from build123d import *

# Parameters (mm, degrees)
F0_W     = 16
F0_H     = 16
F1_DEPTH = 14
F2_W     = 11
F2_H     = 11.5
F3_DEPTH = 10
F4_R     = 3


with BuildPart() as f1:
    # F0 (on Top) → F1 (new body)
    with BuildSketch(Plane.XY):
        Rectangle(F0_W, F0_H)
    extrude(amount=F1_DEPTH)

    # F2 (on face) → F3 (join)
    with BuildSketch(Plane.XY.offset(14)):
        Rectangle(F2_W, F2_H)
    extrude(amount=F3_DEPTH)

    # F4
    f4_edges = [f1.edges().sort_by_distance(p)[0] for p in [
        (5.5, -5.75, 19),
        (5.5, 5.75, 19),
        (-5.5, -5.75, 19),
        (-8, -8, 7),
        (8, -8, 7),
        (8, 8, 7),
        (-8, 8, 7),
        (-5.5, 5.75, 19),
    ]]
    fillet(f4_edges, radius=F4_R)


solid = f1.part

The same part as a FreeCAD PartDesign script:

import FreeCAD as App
import Part
import Sketcher

V = App.Vector


def edges_at(feature, points):
    """Names of the edges that pass closest to the given points."""
    edges = feature.Shape.Edges
    near = lambda p: min(range(len(edges)), key=lambda i: edges[i].distToShape(Part.Vertex(*p))[0])
    return sorted({f"Edge{near(p) + 1}" for p in points})


def add_polygon(sketch, points):
    """Adds a closed chain of lines whose ends are joined by coincident constraints."""
    first, n = sketch.GeometryCount, len(points)
    for a, b in zip(points, points[1:] + points[:1]):
        sketch.addGeometry(Part.LineSegment(App.Vector(*a, 0), App.Vector(*b, 0)), False)
    for i in range(n):
        sketch.addConstraint(Sketcher.Constraint("Coincident", first + i, 2, first + (i + 1) % n, 1))

doc = App.newDocument("Part")
params = doc.addObject("Spreadsheet::Sheet", "Params")
for row, (alias, value) in enumerate([
    ("sketch1_width", "16 mm"),
    ("pad1_length", "14 mm"),
    ("sketch2_width", "11 mm"),
    ("sketch2_height", "11.5 mm"),
    ("pad2_length", "10 mm"),
    ("fillet_radius", "3 mm"),
], start=1):
    params.set(f"A{row}", alias)
    params.set(f"B{row}", "=" + value)
    params.setAlias(f"B{row}", alias)

body = doc.addObject("PartDesign::Body", "Body")

# Sketch on XY plane
sketch1 = body.newObject("Sketcher::SketchObject", "Sketch")
sketch1.AttachmentSupport = (doc.getObject("XY_Plane"), [""])
sketch1.MapMode = "FlatFace"
add_polygon(sketch1, [(-8, 8), (-8, -8), (8, -8), (8, 8)])  # lines 0-3
sketch1.addConstraint([
    Sketcher.Constraint("Vertical", 0),
    Sketcher.Constraint("Horizontal", 1),
    Sketcher.Constraint("Vertical", 2),
    Sketcher.Constraint("Horizontal", 3),
    Sketcher.Constraint("Symmetric", 0, 2, 2, 2, -1, 1),
    Sketcher.Constraint("Equal", 3, 0),
    Sketcher.Constraint("DistanceX", 1, 1, 1, 2, 16.0),
])
sketch1.setExpression("Constraints[10]", "Params.sketch1_width")
pad1 = body.newObject("PartDesign::Pad", "Pad")
pad1.Profile = sketch1
pad1.setExpression("Length", "Params.pad1_length")

# Sketch on XY plane
sketch2 = body.newObject("Sketcher::SketchObject", "Sketch001")
sketch2.AttachmentSupport = (doc.getObject("XY_Plane"), [""])
sketch2.MapMode = "FlatFace"
sketch2.AttachmentOffset = App.Placement(V(0, 0, 14), App.Rotation())
add_polygon(sketch2, [(-6, 6), (-6, -6), (6, -6), (6, 6)])  # lines 0-3
sketch2.addConstraint([
    Sketcher.Constraint("Vertical", 0),
    Sketcher.Constraint("Horizontal", 1),
    Sketcher.Constraint("Vertical", 2),
    Sketcher.Constraint("Horizontal", 3),
    Sketcher.Constraint("Symmetric", 0, 2, 2, 2, -1, 1),
    Sketcher.Constraint("DistanceX", 1, 1, 1, 2, 11.0),
    Sketcher.Constraint("DistanceY", 0, 2, 0, 1, 11.5),
])
sketch2.setExpression("Constraints[9]", "Params.sketch2_width")
sketch2.setExpression("Constraints[10]", "Params.sketch2_height")
pad2 = body.newObject("PartDesign::Pad", "Pad001")
pad2.Profile = sketch2
pad2.setExpression("Length", "Params.pad2_length")
doc.recompute()

fillet = body.newObject("PartDesign::Fillet", "Fillet")
fillet.Base = (pad2, edges_at(pad2, [
    (5.5, -5.75, 19),
    (5.5, 5.75, 19),
    (-5.5, -5.75, 19),
    (-8, -8, 7),
    (8, -8, 7),
    (8, 8, 7),
    (-8, 8, 7),
    (-5.5, 5.75, 19),
]))
fillet.setExpression("Radius", "Params.fillet_radius")

doc.recompute()
